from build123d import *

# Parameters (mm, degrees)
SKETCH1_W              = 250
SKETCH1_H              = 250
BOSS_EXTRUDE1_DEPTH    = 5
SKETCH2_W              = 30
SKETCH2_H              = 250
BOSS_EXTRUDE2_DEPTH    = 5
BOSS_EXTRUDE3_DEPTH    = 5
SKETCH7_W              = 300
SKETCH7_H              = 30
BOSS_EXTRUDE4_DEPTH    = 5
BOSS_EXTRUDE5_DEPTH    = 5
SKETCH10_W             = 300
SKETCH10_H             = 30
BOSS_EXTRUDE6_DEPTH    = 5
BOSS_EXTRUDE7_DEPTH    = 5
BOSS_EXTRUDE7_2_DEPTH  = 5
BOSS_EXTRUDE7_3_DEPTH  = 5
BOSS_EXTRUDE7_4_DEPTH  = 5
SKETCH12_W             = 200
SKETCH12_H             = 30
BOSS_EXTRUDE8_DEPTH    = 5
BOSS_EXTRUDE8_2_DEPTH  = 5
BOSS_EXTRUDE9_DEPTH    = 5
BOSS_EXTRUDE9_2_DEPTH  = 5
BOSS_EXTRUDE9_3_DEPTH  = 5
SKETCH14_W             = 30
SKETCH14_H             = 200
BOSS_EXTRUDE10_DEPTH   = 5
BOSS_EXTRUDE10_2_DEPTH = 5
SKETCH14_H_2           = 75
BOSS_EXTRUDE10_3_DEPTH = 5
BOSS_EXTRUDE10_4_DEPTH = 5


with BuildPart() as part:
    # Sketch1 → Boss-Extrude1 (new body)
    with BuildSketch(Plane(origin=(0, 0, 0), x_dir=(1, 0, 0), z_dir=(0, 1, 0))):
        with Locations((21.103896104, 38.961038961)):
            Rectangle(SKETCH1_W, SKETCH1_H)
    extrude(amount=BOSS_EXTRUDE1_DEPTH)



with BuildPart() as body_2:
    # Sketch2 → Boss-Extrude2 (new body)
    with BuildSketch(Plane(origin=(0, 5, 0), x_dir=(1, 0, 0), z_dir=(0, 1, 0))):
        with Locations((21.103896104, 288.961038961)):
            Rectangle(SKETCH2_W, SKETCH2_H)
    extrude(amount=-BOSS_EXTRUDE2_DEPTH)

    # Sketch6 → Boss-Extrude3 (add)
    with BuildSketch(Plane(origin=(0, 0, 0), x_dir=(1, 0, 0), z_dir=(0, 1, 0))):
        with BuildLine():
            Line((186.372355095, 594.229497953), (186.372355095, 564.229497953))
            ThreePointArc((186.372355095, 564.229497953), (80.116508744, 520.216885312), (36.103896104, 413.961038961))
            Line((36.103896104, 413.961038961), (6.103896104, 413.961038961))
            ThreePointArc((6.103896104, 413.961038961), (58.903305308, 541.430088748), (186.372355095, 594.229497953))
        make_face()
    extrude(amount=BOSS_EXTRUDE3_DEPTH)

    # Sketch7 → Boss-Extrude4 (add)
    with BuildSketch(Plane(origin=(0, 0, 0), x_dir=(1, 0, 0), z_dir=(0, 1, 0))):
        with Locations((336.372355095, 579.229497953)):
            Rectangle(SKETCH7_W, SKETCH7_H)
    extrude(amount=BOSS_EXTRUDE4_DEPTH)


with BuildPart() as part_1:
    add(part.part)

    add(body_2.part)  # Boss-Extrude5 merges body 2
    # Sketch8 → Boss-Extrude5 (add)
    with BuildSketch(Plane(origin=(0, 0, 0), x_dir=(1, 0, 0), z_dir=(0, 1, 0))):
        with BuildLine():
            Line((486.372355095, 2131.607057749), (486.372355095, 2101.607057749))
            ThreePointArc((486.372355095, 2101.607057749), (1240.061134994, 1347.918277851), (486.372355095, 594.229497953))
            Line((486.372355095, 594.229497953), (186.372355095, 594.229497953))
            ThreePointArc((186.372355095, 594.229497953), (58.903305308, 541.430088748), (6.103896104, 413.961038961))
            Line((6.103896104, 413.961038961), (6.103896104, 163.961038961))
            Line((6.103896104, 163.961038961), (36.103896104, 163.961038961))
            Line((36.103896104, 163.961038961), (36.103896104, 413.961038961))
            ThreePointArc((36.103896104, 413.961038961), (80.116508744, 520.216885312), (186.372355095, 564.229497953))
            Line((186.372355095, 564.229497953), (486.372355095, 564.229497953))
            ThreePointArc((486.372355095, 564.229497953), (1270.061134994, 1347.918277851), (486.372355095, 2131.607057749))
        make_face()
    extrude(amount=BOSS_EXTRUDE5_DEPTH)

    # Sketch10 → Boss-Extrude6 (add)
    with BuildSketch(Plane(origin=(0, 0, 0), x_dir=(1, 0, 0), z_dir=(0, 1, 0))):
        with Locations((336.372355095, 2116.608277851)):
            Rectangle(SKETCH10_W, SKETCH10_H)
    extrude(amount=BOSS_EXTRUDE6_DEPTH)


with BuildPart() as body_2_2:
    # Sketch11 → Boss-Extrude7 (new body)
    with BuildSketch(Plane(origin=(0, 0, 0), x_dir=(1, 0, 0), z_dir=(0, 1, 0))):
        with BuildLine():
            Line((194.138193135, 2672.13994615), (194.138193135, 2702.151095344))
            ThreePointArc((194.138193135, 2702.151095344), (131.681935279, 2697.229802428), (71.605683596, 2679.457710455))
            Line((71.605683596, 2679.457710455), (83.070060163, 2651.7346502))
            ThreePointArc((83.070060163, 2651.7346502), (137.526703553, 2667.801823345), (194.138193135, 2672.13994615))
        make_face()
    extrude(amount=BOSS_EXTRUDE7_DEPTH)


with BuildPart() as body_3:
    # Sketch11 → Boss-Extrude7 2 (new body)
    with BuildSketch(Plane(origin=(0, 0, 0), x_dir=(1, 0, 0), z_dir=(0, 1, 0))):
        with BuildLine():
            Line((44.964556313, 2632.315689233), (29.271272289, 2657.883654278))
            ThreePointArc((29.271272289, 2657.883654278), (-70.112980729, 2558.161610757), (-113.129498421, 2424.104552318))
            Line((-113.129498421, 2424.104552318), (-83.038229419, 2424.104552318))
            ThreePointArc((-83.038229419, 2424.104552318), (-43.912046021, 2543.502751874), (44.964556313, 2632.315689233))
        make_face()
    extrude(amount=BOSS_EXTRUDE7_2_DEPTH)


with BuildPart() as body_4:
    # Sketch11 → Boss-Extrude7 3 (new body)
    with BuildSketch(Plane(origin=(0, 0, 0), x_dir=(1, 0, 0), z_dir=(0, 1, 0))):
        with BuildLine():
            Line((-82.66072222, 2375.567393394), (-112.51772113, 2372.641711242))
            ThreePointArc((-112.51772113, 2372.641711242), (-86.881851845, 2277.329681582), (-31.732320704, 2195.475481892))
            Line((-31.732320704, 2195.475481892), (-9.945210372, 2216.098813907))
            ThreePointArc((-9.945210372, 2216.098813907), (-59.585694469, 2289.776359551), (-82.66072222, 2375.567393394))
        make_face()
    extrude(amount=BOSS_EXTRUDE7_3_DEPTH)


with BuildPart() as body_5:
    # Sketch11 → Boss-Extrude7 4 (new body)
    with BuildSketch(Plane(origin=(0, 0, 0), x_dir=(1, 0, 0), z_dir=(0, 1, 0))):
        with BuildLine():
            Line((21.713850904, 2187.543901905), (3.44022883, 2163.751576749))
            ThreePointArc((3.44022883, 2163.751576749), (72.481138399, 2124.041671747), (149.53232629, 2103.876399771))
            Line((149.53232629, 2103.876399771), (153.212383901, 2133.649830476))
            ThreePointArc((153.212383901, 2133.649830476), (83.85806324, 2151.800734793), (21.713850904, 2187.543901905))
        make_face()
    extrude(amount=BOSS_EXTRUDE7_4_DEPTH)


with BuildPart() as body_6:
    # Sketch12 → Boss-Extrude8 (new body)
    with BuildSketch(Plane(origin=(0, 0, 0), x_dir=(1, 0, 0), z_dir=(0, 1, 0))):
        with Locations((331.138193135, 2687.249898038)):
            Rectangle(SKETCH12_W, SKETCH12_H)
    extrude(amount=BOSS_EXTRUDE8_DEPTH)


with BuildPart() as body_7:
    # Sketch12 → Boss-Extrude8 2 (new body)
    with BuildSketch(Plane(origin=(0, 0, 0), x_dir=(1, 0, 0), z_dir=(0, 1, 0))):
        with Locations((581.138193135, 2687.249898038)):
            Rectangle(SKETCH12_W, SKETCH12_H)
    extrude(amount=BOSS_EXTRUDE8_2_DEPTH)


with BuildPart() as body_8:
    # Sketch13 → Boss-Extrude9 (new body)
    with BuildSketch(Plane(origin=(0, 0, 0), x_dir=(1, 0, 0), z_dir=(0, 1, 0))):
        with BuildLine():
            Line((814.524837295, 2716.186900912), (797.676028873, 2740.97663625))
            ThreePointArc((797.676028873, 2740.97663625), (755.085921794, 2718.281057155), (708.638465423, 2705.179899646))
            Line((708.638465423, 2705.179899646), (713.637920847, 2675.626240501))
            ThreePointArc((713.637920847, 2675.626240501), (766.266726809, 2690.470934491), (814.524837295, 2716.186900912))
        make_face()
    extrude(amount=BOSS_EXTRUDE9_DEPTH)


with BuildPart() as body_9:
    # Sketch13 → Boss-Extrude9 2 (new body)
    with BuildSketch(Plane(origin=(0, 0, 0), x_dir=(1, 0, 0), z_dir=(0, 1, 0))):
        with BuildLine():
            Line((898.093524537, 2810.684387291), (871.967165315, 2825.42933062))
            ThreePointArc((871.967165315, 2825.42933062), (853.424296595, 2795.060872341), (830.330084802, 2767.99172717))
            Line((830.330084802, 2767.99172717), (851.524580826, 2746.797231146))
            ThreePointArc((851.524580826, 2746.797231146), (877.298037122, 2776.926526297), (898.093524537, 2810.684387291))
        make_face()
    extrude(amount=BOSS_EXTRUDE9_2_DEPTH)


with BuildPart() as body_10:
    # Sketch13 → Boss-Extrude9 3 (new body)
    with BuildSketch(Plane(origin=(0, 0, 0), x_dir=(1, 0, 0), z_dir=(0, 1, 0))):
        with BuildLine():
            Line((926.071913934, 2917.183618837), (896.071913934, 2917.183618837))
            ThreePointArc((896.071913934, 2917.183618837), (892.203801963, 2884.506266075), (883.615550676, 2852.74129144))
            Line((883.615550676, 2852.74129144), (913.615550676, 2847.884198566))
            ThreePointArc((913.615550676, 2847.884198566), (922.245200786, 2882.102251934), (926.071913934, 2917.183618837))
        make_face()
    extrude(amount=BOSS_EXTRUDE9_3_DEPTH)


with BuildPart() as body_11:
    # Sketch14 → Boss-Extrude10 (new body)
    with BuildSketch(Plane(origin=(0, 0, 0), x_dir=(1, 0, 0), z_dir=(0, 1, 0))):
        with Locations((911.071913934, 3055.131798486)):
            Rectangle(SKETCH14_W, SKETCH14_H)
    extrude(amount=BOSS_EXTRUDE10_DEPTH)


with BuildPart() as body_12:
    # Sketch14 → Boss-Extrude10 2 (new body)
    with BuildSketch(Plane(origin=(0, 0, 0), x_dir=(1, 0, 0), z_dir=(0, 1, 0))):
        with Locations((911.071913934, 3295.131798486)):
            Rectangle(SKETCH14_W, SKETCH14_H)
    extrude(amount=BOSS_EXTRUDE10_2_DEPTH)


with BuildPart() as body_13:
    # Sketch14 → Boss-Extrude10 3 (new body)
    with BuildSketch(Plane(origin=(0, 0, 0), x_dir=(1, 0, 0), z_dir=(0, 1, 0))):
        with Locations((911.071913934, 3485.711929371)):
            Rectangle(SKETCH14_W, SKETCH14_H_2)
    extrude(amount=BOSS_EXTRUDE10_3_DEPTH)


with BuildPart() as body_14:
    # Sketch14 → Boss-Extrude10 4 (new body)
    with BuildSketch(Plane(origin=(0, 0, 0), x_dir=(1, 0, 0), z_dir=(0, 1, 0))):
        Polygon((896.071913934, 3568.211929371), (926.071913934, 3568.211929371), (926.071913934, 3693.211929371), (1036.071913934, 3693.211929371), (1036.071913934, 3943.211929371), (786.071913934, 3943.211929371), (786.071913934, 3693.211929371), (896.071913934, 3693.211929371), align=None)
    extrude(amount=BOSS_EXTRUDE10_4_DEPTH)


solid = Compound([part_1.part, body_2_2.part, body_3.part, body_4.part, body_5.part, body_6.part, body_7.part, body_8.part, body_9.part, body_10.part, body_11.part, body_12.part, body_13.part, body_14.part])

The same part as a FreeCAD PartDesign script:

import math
import FreeCAD as App
import Part
import Sketcher

V = App.Vector
Q = App.Units.Quantity


def add_polygon(sketch, points):
    """Adds a closed chain of lines whose ends are joined by coincident constraints."""
    first, n = sketch.GeometryCount, len(points)
    for a, b in zip(points, points[1:] + points[:1]):
        sketch.addGeometry(Part.LineSegment(App.Vector(*a, 0), App.Vector(*b, 0)), False)
    for i in range(n):
        sketch.addConstraint(Sketcher.Constraint("Coincident", first + i, 2, first + (i + 1) % n, 1))

doc = App.newDocument("Part")
body = doc.addObject("PartDesign::Body", "Body")

# Sketch on XZ plane
sketch1 = body.newObject("Sketcher::SketchObject", "Sketch")
sketch1.AttachmentSupport = (doc.getObject("XZ_Plane"), [""])
sketch1.MapMode = "FlatFace"
add_polygon(sketch1, [(-104, -164), (-104, 86), (146, 86), (146, -164)])  # lines 0-3
sketch1.addConstraint([
    Sketcher.Constraint("Vertical", 0),
    Sketcher.Constraint("Horizontal", 1),
    Sketcher.Constraint("Vertical", 2),
    Sketcher.Constraint("Horizontal", 3),
    Sketcher.Constraint("Equal", 3, 0),
    Sketcher.Constraint("DistanceX", 1, 1, 1, 2, Q("250 mm")),
    Sketcher.Constraint("DistanceY", -1, 1, 0, 2, Q("86.038961 mm")),
    Sketcher.Constraint("DistanceX", 0, 2, -1, 1, Q("103.896104 mm")),
])
pad1 = body.newObject("PartDesign::Pad", "Pad")
pad1.Profile = sketch1
pad1.Length = 5
pad1.Reversed = True
body2 = doc.addObject("PartDesign::Body", "Body001")

# Sketch on XZ plane
sketch2 = body2.newObject("Sketcher::SketchObject", "Sketch001")
sketch2.AttachmentSupport = (doc.getObject("XZ_Plane001"), [""])
sketch2.MapMode = "FlatFace"
sketch2.AttachmentOffset = App.Placement(V(0, 0, -5), App.Rotation())
add_polygon(sketch2, [(6, -414), (6, -164), (36, -164), (36, -414)])  # lines 0-3
sketch2.addConstraint([
    Sketcher.Constraint("Vertical", 0),
    Sketcher.Constraint("Horizontal", 1),
    Sketcher.Constraint("Vertical", 2),
    Sketcher.Constraint("Horizontal", 3),
    Sketcher.Constraint("DistanceX", 1, 1, 1, 2, Q("30 mm")),
    Sketcher.Constraint("DistanceY", 0, 1, 0, 2, Q("250 mm")),
    Sketcher.Constraint("DistanceY", 0, 2, -1, 1, Q("163.961039 mm")),
    Sketcher.Constraint("DistanceX", -1, 1, 0, 2, Q("6.103896 mm")),
])
pad2 = body2.newObject("PartDesign::Pad", "Pad001")
pad2.Profile = sketch2
pad2.Length = 5

# Sketch on XZ plane
sketch3 = body2.newObject("Sketcher::SketchObject", "Sketch002")
sketch3.AttachmentSupport = (doc.getObject("XZ_Plane001"), [""])
sketch3.MapMode = "FlatFace"
sketch3.addGeometry([
    Part.LineSegment(V(186, -564, 0), V(186, -594, 0)),
    Part.ArcOfCircle(Part.Circle(V(186, -414, 0), V(0, 0, 1), 180), math.radians(180), math.radians(270)),
    Part.LineSegment(V(6, -414, 0), V(36, -414, 0)),
    Part.ArcOfCircle(Part.Circle(V(186, -414, 0), V(0, 0, 1), 150), math.radians(-180), math.radians(-90)),
], False)
sketch3.addConstraint([
    Sketcher.Constraint("Coincident", 0, 2, 1, 2),
    Sketcher.Constraint("Coincident", 1, 1, 2, 1),
    Sketcher.Constraint("Coincident", 2, 2, 3, 1),
    Sketcher.Constraint("Coincident", 3, 2, 0, 1),
    Sketcher.Constraint("Vertical", 0),
    Sketcher.Constraint("Horizontal", 2),
    Sketcher.Constraint("Coincident", 3, 3, 1, 3),
    Sketcher.Constraint("Horizontal", 3, 3, 1, 1),
    Sketcher.Constraint("Vertical", 3, 3, 0, 2),
    Sketcher.Constraint("DistanceX", 2, 1, 2, 2, Q("30 mm")),
    Sketcher.Constraint("Radius", 1, Q("180.268459 mm")),
    Sketcher.Constraint("DistanceY", 1, 3, -1, 1, Q("413.961039 mm")),
    Sketcher.Constraint("DistanceX", -1, 1, 1, 3, Q("186.372355 mm")),
])
pad3 = body2.newObject("PartDesign::Pad", "Pad002")
pad3.Profile = sketch3
pad3.Length = 5
pad3.Reversed = True

# Sketch on XZ plane
sketch4 = body2.newObject("Sketcher::SketchObject", "Sketch003")
sketch4.AttachmentSupport = (doc.getObject("XZ_Plane001"), [""])
sketch4.MapMode = "FlatFace"
add_polygon(sketch4, [(186, -594), (186, -564), (486, -564), (486, -594)])  # lines 0-3
sketch4.addConstraint([
    Sketcher.Constraint("Vertical", 0),
    Sketcher.Constraint("Horizontal", 1),
    Sketcher.Constraint("Vertical", 2),
    Sketcher.Constraint("Horizontal", 3),
    Sketcher.Constraint("DistanceX", 1, 1, 1, 2, Q("300 mm")),
    Sketcher.Constraint("DistanceY", 0, 1, 0, 2, Q("30 mm")),
    Sketcher.Constraint("DistanceX", -1, 1, 0, 2, Q("186.372355 mm")),
    Sketcher.Constraint("DistanceY", 0, 2, -1, 1, Q("564.229498 mm")),
])
pad4 = body2.newObject("PartDesign::Pad", "Pad003")
pad4.Profile = sketch4
pad4.Length = 5
pad4.Reversed = True
doc.recompute()

boolean = body.newObject("PartDesign::Boolean", "Boolean")
boolean.Type = "Fuse"
boolean.addObjects([body2])

# Sketch on XZ plane
sketch5 = body.newObject("Sketcher::SketchObject", "Sketch004")
sketch5.AttachmentSupport = (doc.getObject("XZ_Plane"), [""])
sketch5.MapMode = "FlatFace"
sketch5.addGeometry([
    Part.LineSegment(V(486, -2132, 0), V(486, -2102, 0)),  # 0
    Part.ArcOfCircle(Part.Circle(V(486, -1348, 0), V(0, 0, 1), 754), math.radians(-90), math.radians(90)),  # 1
    Part.LineSegment(V(486, -594, 0), V(186, -594, 0)),  # 2
    Part.ArcOfCircle(Part.Circle(V(186, -414, 0), V(0, 0, 1), 180), math.radians(180), math.radians(270)),  # 3
    Part.LineSegment(V(6, -414, 0), V(6, -164, 0)),  # 4
    Part.LineSegment(V(6, -164, 0), V(36, -164, 0)),  # 5
    Part.LineSegment(V(36, -164, 0), V(36, -414, 0)),  # 6
    Part.ArcOfCircle(Part.Circle(V(186, -414, 0), V(0, 0, 1), 150), math.radians(-180), math.radians(-90)),  # 7
    Part.LineSegment(V(186, -564, 0), V(486, -564, 0)),  # 8
    Part.ArcOfCircle(Part.Circle(V(486, -1348, 0), V(0, 0, 1), 784), math.radians(-90), math.radians(90)),  # 9
], False)
sketch5.addConstraint([
    Sketcher.Constraint("Coincident", 0, 2, 1, 1),
    Sketcher.Constraint("Tangent", 1, 2, 2, 1),
    Sketcher.Constraint("Tangent", 2, 2, 3, 2),
    Sketcher.Constraint("Tangent", 3, 1, 4, 1),
    Sketcher.Constraint("Coincident", 4, 2, 5, 1),
    Sketcher.Constraint("Coincident", 5, 2, 6, 1),
    Sketcher.Constraint("Tangent", 6, 2, 7, 1),
    Sketcher.Constraint("Tangent", 7, 2, 8, 1),
    Sketcher.Constraint("Tangent", 8, 2, 9, 2),
    Sketcher.Constraint("Coincident", 9, 1, 0, 1),
    Sketcher.Constraint("Vertical", 0),
    Sketcher.Constraint("Horizontal", 2),
    Sketcher.Constraint("Vertical", 4),
    Sketcher.Constraint("Horizontal", 5),
    Sketcher.Constraint("Vertical", 6),
    Sketcher.Constraint("Horizontal", 8),
    Sketcher.Constraint("Coincident", 7, 3, 3, 3),
    Sketcher.Constraint("Coincident", 9, 3, 1, 3),
    Sketcher.Constraint("Vertical", 9, 3, 0, 2),
    Sketcher.Constraint("DistanceX", 2, 2, 2, 1, Q("300 mm")),
    Sketcher.Constraint("DistanceX", 5, 1, 5, 2, Q("30 mm")),
    Sketcher.Constraint("DistanceY", 4, 1, 4, 2, Q("250 mm")),
    Sketcher.Constraint("Radius", 1, Q("753.68878 mm")),
    Sketcher.Constraint("Radius", 3, Q("180.268459 mm")),
    Sketcher.Constraint("DistanceY", 3, 3, -1, 1, Q("413.961039 mm")),
    Sketcher.Constraint("DistanceX", -1, 1, 1, 3, Q("486.372355 mm")),
])
pad5 = body.newObject("PartDesign::Pad", "Pad004")
pad5.Profile = sketch5
pad5.Length = 5
pad5.Reversed = True

# Sketch on XZ plane
sketch6 = body.newObject("Sketcher::SketchObject", "Sketch005")
sketch6.AttachmentSupport = (doc.getObject("XZ_Plane"), [""])
sketch6.MapMode = "FlatFace"
add_polygon(sketch6, [(186, -2132), (186, -2102), (486, -2102), (486, -2132)])  # lines 0-3
sketch6.addConstraint([
    Sketcher.Constraint("Vertical", 0),
    Sketcher.Constraint("Horizontal", 1),
    Sketcher.Constraint("Vertical", 2),
    Sketcher.Constraint("Horizontal", 3),
    Sketcher.Constraint("DistanceX", 1, 1, 1, 2, Q("300 mm")),
    Sketcher.Constraint("DistanceY", 0, 1, 0, 2, Q("30 mm")),
    Sketcher.Constraint("DistanceX", -1, 1, 0, 2, Q("186.372355 mm")),
    Sketcher.Constraint("DistanceY", 0, 2, -1, 1, Q("2101.608278 mm")),
])
pad6 = body.newObject("PartDesign::Pad", "Pad005")
pad6.Profile = sketch6
pad6.Length = 5
pad6.Reversed = True
body3 = doc.addObject("PartDesign::Body", "Body002")

# Sketch on XZ plane
sketch7 = body3.newObject("Sketcher::SketchObject", "Sketch006")
sketch7.AttachmentSupport = (doc.getObject("XZ_Plane002"), [""])
sketch7.MapMode = "FlatFace"
sketch7.addGeometry([
    Part.LineSegment(V(194, -2672, 0), V(194, -2702, 0)),
    Part.ArcOfCircle(Part.Circle(V(186, -2402, 0), V(0, 0, 1), 300), math.radians(-112), math.radians(-89)),
    Part.LineSegment(V(72, -2679, 0), V(83, -2652, 0)),
    Part.ArcOfCircle(Part.Circle(V(186, -2402, 0), V(0, 0, 1), 270), math.radians(-112), math.radians(-88)),
], False)
sketch7.addConstraint([
    Sketcher.Constraint("Coincident", 0, 2, 1, 2),
    Sketcher.Constraint("Coincident", 1, 1, 2, 1),
    Sketcher.Constraint("Coincident", 2, 2, 3, 1),
    Sketcher.Constraint("Coincident", 3, 2, 0, 1),
    Sketcher.Constraint("Vertical", 0),
    Sketcher.Constraint("Coincident", 3, 3, 1, 3),
    Sketcher.Constraint("Distance", 2, Q("30 mm")),
    Sketcher.Constraint("Radius", 1, Q("300.32162 mm")),
    Sketcher.Constraint("DistanceY", 1, 3, -1, 1, Q("2401.929898 mm")),
    Sketcher.Constraint("DistanceY", 1, 1, -1, 1, Q("2679.45771 mm")),
    Sketcher.Constraint("DistanceX", -1, 1, 2, 2, Q("83.07006 mm")),
    Sketcher.Constraint("DistanceY", 2, 2, -1, 1, Q("2651.73465 mm")),
    Sketcher.Constraint("DistanceX", 1, 3, 0, 2, Q("7.765838 mm")),
])
pad7 = body3.newObject("PartDesign::Pad", "Pad006")
pad7.Profile = sketch7
pad7.Length = 5
pad7.Reversed = True
body4 = doc.addObject("PartDesign::Body", "Body003")

# Sketch on XZ plane
sketch8 = body4.newObject("Sketcher::SketchObject", "Sketch007")
sketch8.AttachmentSupport = (doc.getObject("XZ_Plane003"), [""])
sketch8.MapMode = "FlatFace"
sketch8.addGeometry([
    Part.LineSegment(V(45, -2632, 0), V(29, -2658, 0)),
    Part.ArcOfCircle(Part.Circle(V(186, -2402, 0), V(0, 0, 1), 300), math.radians(-176), math.radians(-122)),
    Part.LineSegment(V(-113, -2424, 0), V(-83, -2424, 0)),
    Part.ArcOfCircle(Part.Circle(V(186, -2402, 0), V(0, 0, 1), 270), math.radians(-175), math.radians(-122)),
], False)
sketch8.addConstraint([
    Sketcher.Constraint("Coincident", 0, 2, 1, 2),
    Sketcher.Constraint("Coincident", 1, 1, 2, 1),
    Sketcher.Constraint("Coincident", 2, 2, 3, 1),
    Sketcher.Constraint("Coincident", 3, 2, 0, 1),
    Sketcher.Constraint("Horizontal", 2),
    Sketcher.Constraint("Coincident", 3, 3, 1, 3),
    Sketcher.Constraint("Distance", 0, Q("30 mm")),
    Sketcher.Constraint("Radius", 1, Q("300.32162 mm")),
    Sketcher.Constraint("DistanceX", 2, 1, 2, 2, Q("30.091269 mm")),
    Sketcher.Constraint("DistanceY", 1, 3, -1, 1, Q("2401.929898 mm")),
    Sketcher.Constraint("DistanceX", 1, 1, -1, 1, Q("113.129498 mm")),
    Sketcher.Constraint("DistanceX", 2, 2, 0, 2, Q("112.309502 mm")),
    Sketcher.Constraint("DistanceX", 3, 2, 3, 3, Q("141.407799 mm")),
])
pad8 = body4.newObject("PartDesign::Pad", "Pad007")
pad8.Profile = sketch8
pad8.Length = 5
pad8.Reversed = True
body5 = doc.addObject("PartDesign::Body", "Body004")

# Sketch on XZ plane
sketch9 = body5.newObject("Sketcher::SketchObject", "Sketch008")
sketch9.AttachmentSupport = (doc.getObject("XZ_Plane004"), [""])
sketch9.MapMode = "FlatFace"
sketch9.addGeometry([
    Part.LineSegment(V(-83, -2376, 0), V(-113, -2373, 0)),
    Part.ArcOfCircle(Part.Circle(V(186, -2402, 0), V(0, 0, 1), 300), math.radians(137), math.radians(174)),
    Part.LineSegment(V(-32, -2195, 0), V(-10, -2216, 0)),
    Part.ArcOfCircle(Part.Circle(V(186, -2402, 0), V(0, 0, 1), 270), math.radians(137), math.radians(174)),
], False)
sketch9.addConstraint([
    Sketcher.Constraint("Coincident", 0, 2, 1, 2),
    Sketcher.Constraint("Coincident", 1, 1, 2, 1),
    Sketcher.Constraint("Coincident", 2, 2, 3, 1),
    Sketcher.Constraint("Coincident", 3, 2, 0, 1),
    Sketcher.Constraint("Coincident", 3, 3, 1, 3),
    Sketcher.Constraint("Distance", 0, Q("30 mm")),
    Sketcher.Constraint("Radius", 1, Q("300.32162 mm")),
    Sketcher.Constraint("DistanceX", 0, 2, 3, 2, Q("29.856999 mm")),
    Sketcher.Constraint("DistanceY", 1, 3, -1, 1, Q("2401.929898 mm")),
    Sketcher.Constraint("DistanceX", 0, 2, 1, 1, Q("80.7854 mm")),
    Sketcher.Constraint("DistanceX", 0, 2, -1, 1, Q("112.517721 mm")),
    Sketcher.Constraint("DistanceY", 0, 2, -1, 1, Q("2372.641711 mm")),
    Sketcher.Constraint("DistanceX", 2, 2, -1, 1, Q("9.94521 mm")),
])
pad9 = body5.newObject("PartDesign::Pad", "Pad008")
pad9.Profile = sketch9
pad9.Length = 5
pad9.Reversed = True
body6 = doc.addObject("PartDesign::Body", "Body005")

# Sketch on XZ plane
sketch10 = body6.newObject("Sketcher::SketchObject", "Sketch009")
sketch10.AttachmentSupport = (doc.getObject("XZ_Plane005"), [""])
sketch10.MapMode = "FlatFace"
sketch10.addGeometry([
    Part.LineSegment(V(22, -2188, 0), V(3, -2164, 0)),
    Part.ArcOfCircle(Part.Circle(V(186, -2402, 0), V(0, 0, 1), 300), math.radians(97), math.radians(128)),
    Part.LineSegment(V(150, -2104, 0), V(153, -2134, 0)),
    Part.ArcOfCircle(Part.Circle(V(186, -2402, 0), V(0, 0, 1), 270), math.radians(97), math.radians(128)),
], False)
sketch10.addConstraint([
    Sketcher.Constraint("Coincident", 0, 2, 1, 2),
    Sketcher.Constraint("Coincident", 1, 1, 2, 1),
    Sketcher.Constraint("Coincident", 2, 2, 3, 1),
    Sketcher.Constraint("Coincident", 3, 2, 0, 1),
    Sketcher.Constraint("Coincident", 3, 3, 1, 3),
    Sketcher.Constraint("Distance", 0, Q("30 mm")),
    Sketcher.Constraint("Radius", 1, Q("300.32162 mm")),
    Sketcher.Constraint("DistanceY", 1, 3, -1, 1, Q("2401.929898 mm")),
    Sketcher.Constraint("DistanceY", 1, 1, -1, 1, Q("2103.8764 mm")),
    Sketcher.Constraint("DistanceY", 3, 2, -1, 1, Q("2187.543902 mm")),
    Sketcher.Constraint("DistanceX", -1, 1, 0, 2, Q("3.440229 mm")),
    Sketcher.Constraint("DistanceY", 2, 2, -1, 1, Q("2133.64983 mm")),
    Sketcher.Constraint("DistanceY", 1, 3, 0, 2, Q("238.178321 mm")),
])
pad10 = body6.newObject("PartDesign::Pad", "Pad009")
pad10.Profile = sketch10
pad10.Length = 5
pad10.Reversed = True
body7 = doc.addObject("PartDesign::Body", "Body006")

# Sketch on XZ plane
sketch11 = body7.newObject("Sketcher::SketchObject", "Sketch010")
sketch11.AttachmentSupport = (doc.getObject("XZ_Plane006"), [""])
sketch11.MapMode = "FlatFace"
add_polygon(sketch11, [(231, -2702), (231, -2672), (431, -2672), (431, -2702)])  # lines 0-3
sketch11.addConstraint([
    Sketcher.Constraint("Vertical", 0),
    Sketcher.Constraint("Horizontal", 1),
    Sketcher.Constraint("Vertical", 2),
    Sketcher.Constraint("Horizontal", 3),
    Sketcher.Constraint("DistanceX", 1, 1, 1, 2, Q("200 mm")),
    Sketcher.Constraint("DistanceY", 0, 1, 0, 2, Q("30 mm")),
    Sketcher.Constraint("DistanceY", 0, 2, -1, 1, Q("2672.249898 mm")),
    Sketcher.Constraint("DistanceX", -1, 1, 0, 2, Q("231.138193 mm")),
])
pad11 = body7.newObject("PartDesign::Pad", "Pad010")
pad11.Profile = sketch11
pad11.Length = 5
pad11.Reversed = True
body8 = doc.addObject("PartDesign::Body", "Body007")

# Sketch on XZ plane
sketch12 = body8.newObject("Sketcher::SketchObject", "Sketch011")
sketch12.AttachmentSupport = (doc.getObject("XZ_Plane007"), [""])
sketch12.MapMode = "FlatFace"
add_polygon(sketch12, [(481, -2702), (481, -2672), (681, -2672), (681, -2702)])  # lines 0-3
sketch12.addConstraint([
    Sketcher.Constraint("Vertical", 0),
    Sketcher.Constraint("Horizontal", 1),
    Sketcher.Constraint("Vertical", 2),
    Sketcher.Constraint("Horizontal", 3),
    Sketcher.Constraint("DistanceX", 1, 1, 1, 2, Q("200 mm")),
    Sketcher.Constraint("DistanceY", 0, 1, 0, 2, Q("30 mm")),
    Sketcher.Constraint("DistanceY", 0, 2, -1, 1, Q("2672.249898 mm")),
    Sketcher.Constraint("DistanceX", -1, 1, 0, 2, Q("481.138193 mm")),
])
pad12 = body8.newObject("PartDesign::Pad", "Pad011")
pad12.Profile = sketch12
pad12.Length = 5
pad12.Reversed = True
body9 = doc.addObject("PartDesign::Body", "Body008")

# Sketch on XZ plane
sketch13 = body9.newObject("Sketcher::SketchObject", "Sketch012")
sketch13.AttachmentSupport = (doc.getObject("XZ_Plane008"), [""])
sketch13.MapMode = "FlatFace"
sketch13.addGeometry([
    Part.LineSegment(V(815, -2716, 0), V(798, -2741, 0)),
    Part.ArcOfCircle(Part.Circle(V(671, -2927, 0), V(0, 0, 1), 225), math.radians(56), math.radians(80)),
    Part.LineSegment(V(709, -2705, 0), V(714, -2676, 0)),
    Part.ArcOfCircle(Part.Circle(V(671, -2927, 0), V(0, 0, 1), 255), math.radians(56), math.radians(80)),
], False)
sketch13.addConstraint([
    Sketcher.Constraint("Coincident", 0, 2, 1, 1),
    Sketcher.Constraint("Coincident", 1, 2, 2, 1),
    Sketcher.Constraint("Coincident", 2, 2, 3, 2),
    Sketcher.Constraint("Coincident", 3, 1, 0, 1),
    Sketcher.Constraint("Coincident", 3, 3, 1, 3),
    Sketcher.Constraint("Radius", 3, Q("255.198609 mm")),
    Sketcher.Constraint("DistanceY", 1, 3, 1, 2, Q("222.069998 mm")),
    Sketcher.Constraint("Radius", 1, Q("225.225065 mm")),
    Sketcher.Constraint("DistanceY", 3, 1, 1, 2, Q("11.007001 mm")),
    Sketcher.Constraint("DistanceY", 1, 3, -1, 1, Q("2927.249898 mm")),
    Sketcher.Constraint("DistanceX", -1, 1, 0, 2, Q("797.676029 mm")),
    Sketcher.Constraint("DistanceX", -1, 1, 2, 2, Q("713.637921 mm")),
    Sketcher.Constraint("DistanceY", 2, 2, -1, 1, Q("2675.626241 mm")),
])
pad13 = body9.newObject("PartDesign::Pad", "Pad012")
pad13.Profile = sketch13
pad13.Length = 5
pad13.Reversed = True
body10 = doc.addObject("PartDesign::Body", "Body009")

# Sketch on XZ plane
sketch14 = body10.newObject("Sketcher::SketchObject", "Sketch013")
sketch14.AttachmentSupport = (doc.getObject("XZ_Plane009"), [""])
sketch14.MapMode = "FlatFace"
sketch14.addGeometry([
    Part.LineSegment(V(898, -2811, 0), V(872, -2825, 0)),
    Part.ArcOfCircle(Part.Circle(V(671, -2927, 0), V(0, 0, 1), 225), math.radians(26.88), math.radians(45)),
    Part.LineSegment(V(830, -2768, 0), V(852, -2747, 0)),
    Part.ArcOfCircle(Part.Circle(V(671, -2927, 0), V(0, 0, 1), 255), math.radians(27.18), math.radians(45)),
], False)
sketch14.addConstraint([
    Sketcher.Constraint("Coincident", 0, 2, 1, 1),
    Sketcher.Constraint("Coincident", 1, 2, 2, 1),
    Sketcher.Constraint("Coincident", 2, 2, 3, 2),
    Sketcher.Constraint("Coincident", 3, 1, 0, 1),
    Sketcher.Constraint("Coincident", 3, 3, 1, 3),
    Sketcher.Constraint("Angle", 2, Q("45 deg")),
    Sketcher.Constraint("Distance", 0, Q("30 mm")),
    Sketcher.Constraint("Radius", 3, Q("255.198609 mm")),
    Sketcher.Constraint("Radius", 1, Q("225.225065 mm")),
    Sketcher.Constraint("DistanceY", 1, 3, -1, 1, Q("2927.249898 mm")),
    Sketcher.Constraint("DistanceY", 0, 2, 2, 2, Q("78.632099 mm")),
    Sketcher.Constraint("DistanceY", 0, 2, -1, 1, Q("2825.429331 mm")),
    Sketcher.Constraint("DistanceX", -1, 1, 2, 2, Q("851.524581 mm")),
])
pad14 = body10.newObject("PartDesign::Pad", "Pad013")
pad14.Profile = sketch14
pad14.Length = 5
pad14.Reversed = True
body11 = doc.addObject("PartDesign::Body", "Body010")

# Sketch on XZ plane
sketch15 = body11.newObject("Sketcher::SketchObject", "Sketch014")
sketch15.AttachmentSupport = (doc.getObject("XZ_Plane010"), [""])
sketch15.MapMode = "FlatFace"
sketch15.addGeometry([
    Part.LineSegment(V(926, -2917, 0), V(896, -2917, 0)),
    Part.ArcOfCircle(Part.Circle(V(671, -2927, 0), V(0, 0, 1), 225), math.radians(2.56), math.radians(19.32)),
    Part.LineSegment(V(884, -2853, 0), V(914, -2848, 0)),
    Part.ArcOfCircle(Part.Circle(V(671, -2927, 0), V(0, 0, 1), 255), math.radians(2.26), math.radians(18.12)),
], False)
sketch15.addConstraint([
    Sketcher.Constraint("Coincident", 0, 2, 1, 1),
    Sketcher.Constraint("Coincident", 1, 2, 2, 1),
    Sketcher.Constraint("Coincident", 2, 2, 3, 2),
    Sketcher.Constraint("Coincident", 3, 1, 0, 1),
    Sketcher.Constraint("Horizontal", 0),
    Sketcher.Constraint("Coincident", 3, 3, 1, 3),
    Sketcher.Constraint("DistanceX", 0, 2, 0, 1, Q("30 mm")),
    Sketcher.Constraint("DistanceX", 3, 3, 0, 2, Q("225 mm")),
    Sketcher.Constraint("DistanceX", 1, 2, 2, 2, Q("30 mm")),
    Sketcher.Constraint("Radius", 3, Q("255.198609 mm")),
    Sketcher.Constraint("DistanceY", 1, 3, -1, 1, Q("2927.249898 mm")),
    Sketcher.Constraint("DistanceY", 2, 2, -1, 1, Q("2847.884199 mm")),
    Sketcher.Constraint("DistanceX", -1, 1, 1, 2, Q("883.615551 mm")),
])
pad15 = body11.newObject("PartDesign::Pad", "Pad014")
pad15.Profile = sketch15
pad15.Length = 5
pad15.Reversed = True
body12 = doc.addObject("PartDesign::Body", "Body011")

# Sketch on XZ plane
sketch16 = body12.newObject("Sketcher::SketchObject", "Sketch015")
sketch16.AttachmentSupport = (doc.getObject("XZ_Plane011"), [""])
sketch16.MapMode = "FlatFace"
add_polygon(sketch16, [(896, -3155), (896, -2955), (926, -2955), (926, -3155)])  # lines 0-3
sketch16.addConstraint([
    Sketcher.Constraint("Vertical", 0),
    Sketcher.Constraint("Horizontal", 1),
    Sketcher.Constraint("Vertical", 2),
    Sketcher.Constraint("Horizontal", 3),
    Sketcher.Constraint("DistanceX", 1, 1, 1, 2, Q("30 mm")),
    Sketcher.Constraint("DistanceY", 0, 1, 0, 2, Q("200 mm")),
    Sketcher.Constraint("DistanceY", 0, 2, -1, 1, Q("2955.131798 mm")),
    Sketcher.Constraint("DistanceX", -1, 1, 0, 2, Q("896.071914 mm")),
])
pad16 = body12.newObject("PartDesign::Pad", "Pad015")
pad16.Profile = sketch16
pad16.Length = 5
pad16.Reversed = True
body13 = doc.addObject("PartDesign::Body", "Body012")

# Sketch on XZ plane
sketch17 = body13.newObject("Sketcher::SketchObject", "Sketch016")
sketch17.AttachmentSupport = (doc.getObject("XZ_Plane012"), [""])
sketch17.MapMode = "FlatFace"
add_polygon(sketch17, [(896, -3395), (896, -3195), (926, -3195), (926, -3395)])  # lines 0-3
sketch17.addConstraint([
    Sketcher.Constraint("Vertical", 0),
    Sketcher.Constraint("Horizontal", 1),
    Sketcher.Constraint("Vertical", 2),
    Sketcher.Constraint("Horizontal", 3),
    Sketcher.Constraint("DistanceX", 1, 1, 1, 2, Q("30 mm")),
    Sketcher.Constraint("DistanceY", 0, 1, 0, 2, Q("200 mm")),
    Sketcher.Constraint("DistanceY", 0, 2, -1, 1, Q("3195.131798 mm")),
    Sketcher.Constraint("DistanceX", -1, 1, 0, 2, Q("896.071914 mm")),
])
pad17 = body13.newObject("PartDesign::Pad", "Pad016")
pad17.Profile = sketch17
pad17.Length = 5
pad17.Reversed = True
body14 = doc.addObject("PartDesign::Body", "Body013")

# Sketch on XZ plane
sketch18 = body14.newObject("Sketcher::SketchObject", "Sketch017")
sketch18.AttachmentSupport = (doc.getObject("XZ_Plane013"), [""])
sketch18.MapMode = "FlatFace"
add_polygon(sketch18, [(896, -3523), (896, -3448), (926, -3448), (926, -3523)])  # lines 0-3
sketch18.addConstraint([
    Sketcher.Constraint("Vertical", 0),
    Sketcher.Constraint("Horizontal", 1),
    Sketcher.Constraint("Vertical", 2),
    Sketcher.Constraint("Horizontal", 3),
    Sketcher.Constraint("DistanceX", 1, 1, 1, 2, Q("30 mm")),
    Sketcher.Constraint("DistanceY", 0, 1, 0, 2, Q("75 mm")),
    Sketcher.Constraint("DistanceY", 0, 2, -1, 1, Q("3448.211929 mm")),
    Sketcher.Constraint("DistanceX", -1, 1, 0, 2, Q("896.071914 mm")),
])
pad18 = body14.newObject("PartDesign::Pad", "Pad017")
pad18.Profile = sketch18
pad18.Length = 5
pad18.Reversed = True
body15 = doc.addObject("PartDesign::Body", "Body014")

# Sketch on XZ plane
sketch19 = body15.newObject("Sketcher::SketchObject", "Sketch018")
sketch19.AttachmentSupport = (doc.getObject("XZ_Plane014"), [""])
sketch19.MapMode = "FlatFace"
add_polygon(sketch19, [(896, -3568), (926, -3568), (926, -3693), (1036, -3693), (1036, -3943), (786, -3943), (786, -3693), (896, -3693)])  # lines 0-7
sketch19.addConstraint([
    Sketcher.Constraint("Horizontal", 0),
    Sketcher.Constraint("Vertical", 1),
    Sketcher.Constraint("Horizontal", 2),
    Sketcher.Constraint("Vertical", 3),
    Sketcher.Constraint("Horizontal", 4),
    Sketcher.Constraint("Vertical", 5),
    Sketcher.Constraint("Horizontal", 6),
    Sketcher.Constraint("Vertical", 7),
    Sketcher.Constraint("Horizontal", 2, 2, 5, 2),
    Sketcher.Constraint("Equal", 2, 6),
    Sketcher.Constraint("Equal", 4, 3),
    Sketcher.Constraint("DistanceX", 0, 1, 0, 2, Q("30 mm")),
    Sketcher.Constraint("DistanceX", 2, 1, 2, 2, Q("110 mm")),
    Sketcher.Constraint("DistanceY", 1, 2, 1, 1, Q("125 mm")),
    Sketcher.Constraint("DistanceY", 0, 2, -1, 1, Q("3568.211929 mm")),
    Sketcher.Constraint("DistanceX", -1, 1, 0, 2, Q("926.071914 mm")),
])
pad19 = body15.newObject("PartDesign::Pad", "Pad018")
pad19.Profile = sketch19
pad19.Length = 5
pad19.Reversed = True

doc.recompute()
